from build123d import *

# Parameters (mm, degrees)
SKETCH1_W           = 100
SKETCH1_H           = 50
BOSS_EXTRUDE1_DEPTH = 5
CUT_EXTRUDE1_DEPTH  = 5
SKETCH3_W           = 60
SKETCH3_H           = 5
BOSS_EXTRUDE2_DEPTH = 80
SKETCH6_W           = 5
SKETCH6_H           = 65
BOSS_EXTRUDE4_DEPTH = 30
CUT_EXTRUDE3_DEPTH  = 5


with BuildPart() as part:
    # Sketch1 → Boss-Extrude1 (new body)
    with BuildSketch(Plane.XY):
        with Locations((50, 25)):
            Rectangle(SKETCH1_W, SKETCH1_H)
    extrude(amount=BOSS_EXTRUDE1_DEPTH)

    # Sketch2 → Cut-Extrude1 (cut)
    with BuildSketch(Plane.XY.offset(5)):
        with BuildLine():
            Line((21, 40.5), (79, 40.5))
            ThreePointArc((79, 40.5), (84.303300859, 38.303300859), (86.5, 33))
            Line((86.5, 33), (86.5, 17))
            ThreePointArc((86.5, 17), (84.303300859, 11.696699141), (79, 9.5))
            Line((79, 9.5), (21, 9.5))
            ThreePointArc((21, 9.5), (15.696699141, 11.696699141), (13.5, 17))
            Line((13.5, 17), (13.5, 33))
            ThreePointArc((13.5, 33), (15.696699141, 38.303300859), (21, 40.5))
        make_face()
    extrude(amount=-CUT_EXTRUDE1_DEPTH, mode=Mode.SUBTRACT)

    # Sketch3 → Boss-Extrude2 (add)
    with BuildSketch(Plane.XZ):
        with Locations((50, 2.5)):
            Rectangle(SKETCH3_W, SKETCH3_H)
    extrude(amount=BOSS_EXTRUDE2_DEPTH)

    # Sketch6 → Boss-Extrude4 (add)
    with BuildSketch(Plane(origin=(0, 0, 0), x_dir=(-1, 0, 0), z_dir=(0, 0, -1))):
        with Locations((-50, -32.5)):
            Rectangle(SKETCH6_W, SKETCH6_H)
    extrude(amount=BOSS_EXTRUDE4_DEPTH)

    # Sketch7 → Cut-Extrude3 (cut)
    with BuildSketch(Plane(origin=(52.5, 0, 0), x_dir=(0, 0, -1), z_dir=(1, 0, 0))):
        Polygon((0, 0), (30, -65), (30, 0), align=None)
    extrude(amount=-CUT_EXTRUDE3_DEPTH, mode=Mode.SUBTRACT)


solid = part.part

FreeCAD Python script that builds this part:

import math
import FreeCAD as App
import Part
import Sketcher
from FreeCAD import Vector


def add_polygon(sketch, points):
    """Adds a closed chain of lines whose ends are joined by coincident constraints."""
    first, n = sketch.GeometryCount, len(points)
    for a, b in zip(points, points[1:] + points[:1]):
        sketch.addGeometry(Part.LineSegment(App.Vector(*a, 0), App.Vector(*b, 0)), False)
    for i in range(n):
        sketch.addConstraint(Sketcher.Constraint("Coincident", first + i, 2, first + (i + 1) % n, 1))

doc = App.newDocument("Part")
body = doc.addObject("PartDesign::Body", "Body")

sketch1 = doc.addObject("Sketcher::SketchObject", "Sketch")
body.addObject(sketch1)
sketch1.AttachmentSupport = (doc.XY_Plane, [""])
sketch1.MapMode = "FlatFace"
add_polygon(sketch1, [(0, 50), (0, 0), (100, 0), (100, 50)])
sketch1.addConstraint(Sketcher.Constraint("Vertical", 0))
sketch1.addConstraint(Sketcher.Constraint("Horizontal", 1))
sketch1.addConstraint(Sketcher.Constraint("Vertical", 2))
sketch1.addConstraint(Sketcher.Constraint("Horizontal", 3))
sketch1.addConstraint(Sketcher.Constraint("Coincident", 0, 2, -1, 1))
sketch1.addConstraint(Sketcher.Constraint("DistanceX", 1, 1, 1, 2, 100.0))
sketch1.addConstraint(Sketcher.Constraint("DistanceY", 0, 2, 0, 1, 50.0))
pad1 = doc.addObject("PartDesign::Pad", "Pad")
body.addObject(pad1)
pad1.Profile = sketch1
pad1.Length = 5

sketch2 = doc.addObject("Sketcher::SketchObject", "Sketch001")
body.addObject(sketch2)
sketch2.AttachmentSupport = (doc.XY_Plane, [""])
sketch2.MapMode = "FlatFace"
sketch2.AttachmentOffset = App.Placement(Vector(0, 0, 5), App.Rotation())
sketch2.addGeometry(Part.LineSegment(Vector(79, 40.5, 0), Vector(21, 40.5, 0)), False)
sketch2.addGeometry(Part.ArcOfCircle(Part.Circle(Vector(21, 33, 0), Vector(0, 0, 1), 7.5), math.radians(90), math.radians(180)), False)
sketch2.addGeometry(Part.LineSegment(Vector(13.5, 33, 0), Vector(13.5, 17, 0)), False)
sketch2.addGeometry(Part.ArcOfCircle(Part.Circle(Vector(21, 17, 0), Vector(0, 0, 1), 7.5), math.radians(180), math.radians(270)), False)
sketch2.addGeometry(Part.LineSegment(Vector(21, 9.5, 0), Vector(79, 9.5, 0)), False)
sketch2.addGeometry(Part.ArcOfCircle(Part.Circle(Vector(79, 17, 0), Vector(0, 0, 1), 7.5), math.radians(-90), math.radians(0)), False)
sketch2.addGeometry(Part.LineSegment(Vector(86.5, 17, 0), Vector(86.5, 33, 0)), False)
sketch2.addGeometry(Part.ArcOfCircle(Part.Circle(Vector(79, 33, 0), Vector(0, 0, 1), 7.5), math.radians(0), math.radians(90)), False)
sketch2.addConstraint(Sketcher.Constraint("Tangent", 0, 2, 1, 1))
sketch2.addConstraint(Sketcher.Constraint("Tangent", 1, 2, 2, 1))
sketch2.addConstraint(Sketcher.Constraint("Tangent", 2, 2, 3, 1))
sketch2.addConstraint(Sketcher.Constraint("Tangent", 3, 2, 4, 1))
sketch2.addConstraint(Sketcher.Constraint("Tangent", 4, 2, 5, 1))
sketch2.addConstraint(Sketcher.Constraint("Tangent", 5, 2, 6, 1))
sketch2.addConstraint(Sketcher.Constraint("Tangent", 6, 2, 7, 1))
sketch2.addConstraint(Sketcher.Constraint("Tangent", 7, 2, 0, 1))
sketch2.addConstraint(Sketcher.Constraint("Horizontal", 0))
sketch2.addConstraint(Sketcher.Constraint("Vertical", 2))
sketch2.addConstraint(Sketcher.Constraint("Horizontal", 4))
sketch2.addConstraint(Sketcher.Constraint("Vertical", 6))
sketch2.addConstraint(Sketcher.Constraint("Equal", 1, 3))
sketch2.addConstraint(Sketcher.Constraint("Equal", 3, 5))
sketch2.addConstraint(Sketcher.Constraint("Equal", 5, 7))
sketch2.addConstraint(Sketcher.Constraint("Radius", 1, 7.5))
sketch2.addConstraint(Sketcher.Constraint("DistanceX", 0, 2, 0, 1, 58.0))
sketch2.addConstraint(Sketcher.Constraint("DistanceY", 2, 2, 2, 1, 16.0))
sketch2.addConstraint(Sketcher.Constraint("DistanceX", -1, 1, 1, 3, 21.0))
sketch2.addConstraint(Sketcher.Constraint("DistanceY", -1, 1, 1, 3, 33.0))
pocket1 = doc.addObject("PartDesign::Pocket", "Pocket")
body.addObject(pocket1)
pocket1.Profile = sketch2
pocket1.Length = 5

sketch3 = doc.addObject("Sketcher::SketchObject", "Sketch002")
body.addObject(sketch3)
sketch3.AttachmentSupport = (doc.XZ_Plane, [""])
sketch3.MapMode = "FlatFace"
add_polygon(sketch3, [(20, 5), (20, 0), (80, 0), (80, 5)])
sketch3.addConstraint(Sketcher.Constraint("Vertical", 0))
sketch3.addConstraint(Sketcher.Constraint("Horizontal", 1))
sketch3.addConstraint(Sketcher.Constraint("Vertical", 2))
sketch3.addConstraint(Sketcher.Constraint("Horizontal", 3))
sketch3.addConstraint(Sketcher.Constraint("PointOnObject", 0, 2, -1))
sketch3.addConstraint(Sketcher.Constraint("DistanceX", 1, 1, 1, 2, 60.0))
sketch3.addConstraint(Sketcher.Constraint("DistanceY", 0, 2, 0, 1, 5.0))
sketch3.addConstraint(Sketcher.Constraint("DistanceX", -1, 1, 0, 2, 20.0))
pad2 = doc.addObject("PartDesign::Pad", "Pad001")
body.addObject(pad2)
pad2.Profile = sketch3
pad2.Length = 80

sketch4 = doc.addObject("Sketcher::SketchObject", "Sketch003")
body.addObject(sketch4)
sketch4.AttachmentSupport = (doc.XY_Plane, [""])
sketch4.MapMode = "FlatFace"
add_polygon(sketch4, [(52.5, 0), (52.5, -65), (47.5, -65), (47.5, 0)])
sketch4.addConstraint(Sketcher.Constraint("Vertical", 0))
sketch4.addConstraint(Sketcher.Constraint("Horizontal", 1))
sketch4.addConstraint(Sketcher.Constraint("Vertical", 2))
sketch4.addConstraint(Sketcher.Constraint("Horizontal", 3))
sketch4.addConstraint(Sketcher.Constraint("PointOnObject", 2, 2, -1))
sketch4.addConstraint(Sketcher.Constraint("DistanceX", 1, 2, 1, 1, 5.0))
sketch4.addConstraint(Sketcher.Constraint("DistanceY", 0, 2, 0, 1, 65.0))
sketch4.addConstraint(Sketcher.Constraint("DistanceX", -1, 1, 0, 2, 52.5))
pad3 = doc.addObject("PartDesign::Pad", "Pad002")
body.addObject(pad3)
pad3.Profile = sketch4
pad3.Length = 30
pad3.Reversed = True

sketch5 = doc.addObject("Sketcher::SketchObject", "Sketch004")
body.addObject(sketch5)
sketch5.AttachmentSupport = (doc.YZ_Plane, [""])
sketch5.MapMode = "FlatFace"
sketch5.AttachmentOffset = App.Placement(Vector(0, 0, 52.5), App.Rotation())
add_polygon(sketch5, [(0, 0), (-65, -30), (0, -30)])
sketch5.addConstraint(Sketcher.Constraint("Horizontal", 1))
sketch5.addConstraint(Sketcher.Constraint("Vertical", 2))
sketch5.addConstraint(Sketcher.Constraint("Coincident", 2, 2, -1, 1))
sketch5.addConstraint(Sketcher.Constraint("DistanceX", 1, 1, 1, 2, 65.0))
sketch5.addConstraint(Sketcher.Constraint("DistanceY", 2, 1, 2, 2, 30.0))
pocket2 = doc.addObject("PartDesign::Pocket", "Pocket001")
body.addObject(pocket2)
pocket2.Profile = sketch5
pocket2.Length = 5

doc.recompute()
